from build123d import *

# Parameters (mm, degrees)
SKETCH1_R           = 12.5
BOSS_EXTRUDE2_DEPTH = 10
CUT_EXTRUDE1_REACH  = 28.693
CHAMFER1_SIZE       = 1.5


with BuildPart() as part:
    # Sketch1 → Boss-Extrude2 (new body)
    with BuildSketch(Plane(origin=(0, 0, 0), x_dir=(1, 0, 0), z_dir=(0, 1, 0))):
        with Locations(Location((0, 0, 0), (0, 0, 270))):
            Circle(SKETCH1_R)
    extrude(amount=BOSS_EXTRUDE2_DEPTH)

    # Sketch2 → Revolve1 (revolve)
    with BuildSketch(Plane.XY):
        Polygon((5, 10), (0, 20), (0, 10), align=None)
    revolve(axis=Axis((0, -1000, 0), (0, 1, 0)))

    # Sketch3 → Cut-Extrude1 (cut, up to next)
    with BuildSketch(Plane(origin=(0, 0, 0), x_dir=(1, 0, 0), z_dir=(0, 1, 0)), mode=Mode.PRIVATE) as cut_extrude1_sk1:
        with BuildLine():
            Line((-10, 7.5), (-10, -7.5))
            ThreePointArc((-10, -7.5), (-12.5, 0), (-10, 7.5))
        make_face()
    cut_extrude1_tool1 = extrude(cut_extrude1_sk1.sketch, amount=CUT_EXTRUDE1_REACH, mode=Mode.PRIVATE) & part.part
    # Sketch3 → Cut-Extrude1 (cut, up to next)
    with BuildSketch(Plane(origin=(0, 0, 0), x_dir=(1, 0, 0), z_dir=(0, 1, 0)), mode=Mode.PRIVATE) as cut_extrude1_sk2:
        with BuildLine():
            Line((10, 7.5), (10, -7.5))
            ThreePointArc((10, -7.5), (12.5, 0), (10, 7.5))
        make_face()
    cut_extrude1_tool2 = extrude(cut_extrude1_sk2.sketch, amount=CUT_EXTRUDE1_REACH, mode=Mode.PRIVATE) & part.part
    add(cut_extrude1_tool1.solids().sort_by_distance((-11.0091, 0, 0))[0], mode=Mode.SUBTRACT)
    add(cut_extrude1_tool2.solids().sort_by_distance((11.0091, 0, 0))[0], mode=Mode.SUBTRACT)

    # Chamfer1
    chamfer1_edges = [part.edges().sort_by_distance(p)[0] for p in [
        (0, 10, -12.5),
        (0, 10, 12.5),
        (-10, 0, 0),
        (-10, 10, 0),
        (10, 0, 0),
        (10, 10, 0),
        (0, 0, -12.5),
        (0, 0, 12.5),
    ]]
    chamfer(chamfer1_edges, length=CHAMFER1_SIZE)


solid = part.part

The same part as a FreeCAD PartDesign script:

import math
import FreeCAD as App
import Part
import Sketcher
from FreeCAD import Vector
Q = App.Units.Quantity


def edges_at(feature, points):
    """Names of the edges that pass closest to the given points."""
    edges = feature.Shape.Edges
    near = lambda p: min(range(len(edges)), key=lambda i: edges[i].distToShape(Part.Vertex(*p))[0])
    return sorted({f"Edge{near(p) + 1}" for p in points})

doc = App.newDocument("Part")
body = doc.addObject("PartDesign::Body", "Body")

# Sketch on XZ plane
sketch1 = body.newObject("Sketcher::SketchObject", "Sketch")
sketch1.AttachmentSupport = (doc.getObject("XZ_Plane"), [""])
sketch1.MapMode = "FlatFace"
sketch1.addGeometry(Part.Circle(Vector(0, 0, 0), Vector(0, 0, 1), 12), False)
sketch1.addConstraint([
    Sketcher.Constraint("Coincident", 0, 3, -1, 1),
    Sketcher.Constraint("Diameter", 0, Q("25 mm")),
])
pad1 = body.newObject("PartDesign::Pad", "Pad")
pad1.Profile = sketch1
pad1.Length = 10
pad1.Reversed = True

# Sketch on XY plane
sketch2 = body.newObject("Sketcher::SketchObject", "Sketch001")
sketch2.AttachmentSupport = (doc.getObject("XY_Plane"), [""])
sketch2.MapMode = "FlatFace"
sketch2.addGeometry([
    Part.LineSegment(Vector(5, 10, 0), Vector(0, 20, 0)),
    Part.LineSegment(Vector(0, 20, 0), Vector(0, 10, 0)),
    Part.LineSegment(Vector(0, 10, 0), Vector(5, 10, 0)),
], False)
sketch2.addConstraint([
    Sketcher.Constraint("Coincident", 0, 2, 1, 1),
    Sketcher.Constraint("Coincident", 1, 2, 2, 1),
    Sketcher.Constraint("Coincident", 2, 2, 0, 1),
    Sketcher.Constraint("Vertical", 1),
    Sketcher.Constraint("Horizontal", 2),
    Sketcher.Constraint("PointOnObject", 0, 2, -2),
    Sketcher.Constraint("DistanceX", 2, 1, 2, 2, Q("5 mm")),
    Sketcher.Constraint("DistanceY", 1, 2, 1, 1, Q("10 mm")),
    Sketcher.Constraint("DistanceY", -1, 1, 0, 2, Q("20 mm")),
])
revolution = body.newObject("PartDesign::Revolution", "Revolution")
revolution.Profile = sketch2
revolution.ReferenceAxis = (sketch2, ["V_Axis"])
revolution.Angle = 360

# Sketch on XZ plane
sketch3 = body.newObject("Sketcher::SketchObject", "Sketch002")
sketch3.AttachmentSupport = (doc.getObject("XZ_Plane"), [""])
sketch3.MapMode = "FlatFace"
sketch3.addGeometry([
    Part.LineSegment(Vector(-10, 8, 0), Vector(-10, -8, 0)),
    Part.ArcOfCircle(Part.Circle(Vector(0, 0, 0), Vector(0, 0, 1), 12), math.radians(143), math.radians(217)),
], False)
sketch3.addConstraint([
    Sketcher.Constraint("Coincident", 0, 1, 1, 1),
    Sketcher.Constraint("Coincident", 1, 2, 0, 2),
    Sketcher.Constraint("Vertical", 0),
    Sketcher.Constraint("Coincident", 1, 3, -1, 1),
    Sketcher.Constraint("Radius", 1, Q("12.5 mm")),
    Sketcher.Constraint("DistanceY", 0, 2, 0, 1, Q("15 mm")),
])
pocket1 = body.newObject("PartDesign::Pocket", "Pocket")
pocket1.Profile = sketch3
pocket1.Type = "UpToFirst"

# Sketch on XZ plane
sketch4 = body.newObject("Sketcher::SketchObject", "Sketch003")
sketch4.AttachmentSupport = (doc.getObject("XZ_Plane"), [""])
sketch4.MapMode = "FlatFace"
sketch4.addGeometry([
    Part.LineSegment(Vector(10, -8, 0), Vector(10, 8, 0)),
    Part.ArcOfCircle(Part.Circle(Vector(0, 0, 0), Vector(0, 0, 1), 12), math.radians(-37), math.radians(37)),
], False)
sketch4.addConstraint([
    Sketcher.Constraint("Coincident", 0, 1, 1, 1),
    Sketcher.Constraint("Coincident", 1, 2, 0, 2),
    Sketcher.Constraint("Vertical", 0),
    Sketcher.Constraint("Coincident", 1, 3, -1, 1),
    Sketcher.Constraint("Radius", 1, Q("12.5 mm")),
    Sketcher.Constraint("DistanceY", 0, 1, 0, 2, Q("15 mm")),
])
pocket2 = body.newObject("PartDesign::Pocket", "Pocket001")
pocket2.Profile = sketch4
pocket2.Type = "UpToFirst"
doc.recompute()

chamfer = body.newObject("PartDesign::Chamfer", "Chamfer")
chamfer.Base = (pocket2, edges_at(pocket2, [
    (0, 10, -12.5),
    (0, 10, 12.5),
    (-10, 0, 0),
    (-10, 10, 0),
    (10, 0, 0),
    (10, 10, 0),
    (0, 0, -12.5),
    (0, 0, 12.5),
]))
chamfer.Size = 1.5

doc.recompute()
